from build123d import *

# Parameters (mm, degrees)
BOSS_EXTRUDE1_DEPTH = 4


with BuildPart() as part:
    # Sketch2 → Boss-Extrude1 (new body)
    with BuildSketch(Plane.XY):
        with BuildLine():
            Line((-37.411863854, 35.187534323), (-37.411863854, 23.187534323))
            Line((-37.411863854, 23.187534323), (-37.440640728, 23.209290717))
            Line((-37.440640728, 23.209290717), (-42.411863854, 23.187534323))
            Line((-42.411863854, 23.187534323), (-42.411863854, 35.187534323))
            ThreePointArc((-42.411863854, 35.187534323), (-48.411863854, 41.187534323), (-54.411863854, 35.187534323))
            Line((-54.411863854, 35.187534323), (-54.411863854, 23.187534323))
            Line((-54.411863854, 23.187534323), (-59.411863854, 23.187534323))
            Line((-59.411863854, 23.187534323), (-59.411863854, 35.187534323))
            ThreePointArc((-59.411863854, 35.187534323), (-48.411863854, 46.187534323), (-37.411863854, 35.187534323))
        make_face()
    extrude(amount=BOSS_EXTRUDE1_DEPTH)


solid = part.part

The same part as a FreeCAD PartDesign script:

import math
import FreeCAD as App
import Part
import Sketcher
from FreeCAD import Vector

doc = App.newDocument("Part")
body = doc.addObject("PartDesign::Body", "Body")

# Sketch on XY plane
sketch1 = doc.addObject("Sketcher::SketchObject", "Sketch")
body.addObject(sketch1)
sketch1.AttachmentSupport = (doc.XY_Plane, [""])
sketch1.MapMode = "FlatFace"
sketch1.addGeometry(Part.LineSegment(Vector(-37.412, 23.188, 0), Vector(-37.412, 35.188, 0)), False)
sketch1.addGeometry(Part.ArcOfCircle(Part.Circle(Vector(-48.412, 35.188, 0), Vector(0, 0, 1), 11), math.radians(0), math.radians(180)), False)
sketch1.addGeometry(Part.LineSegment(Vector(-59.412, 35.188, 0), Vector(-59.412, 23.188, 0)), False)
sketch1.addGeometry(Part.LineSegment(Vector(-59.412, 23.188, 0), Vector(-54.412, 23.188, 0)), False)
sketch1.addGeometry(Part.LineSegment(Vector(-54.412, 23.188, 0), Vector(-54.412, 35.188, 0)), False)
sketch1.addGeometry(Part.ArcOfCircle(Part.Circle(Vector(-48.412, 35.188, 0), Vector(0, 0, 1), 6), math.radians(0), math.radians(180)), False)
sketch1.addGeometry(Part.LineSegment(Vector(-42.412, 35.188, 0), Vector(-42.412, 23.188, 0)), False)
sketch1.addGeometry(Part.LineSegment(Vector(-42.412, 23.188, 0), Vector(-37.441, 23.209, 0)), False)
sketch1.addGeometry(Part.LineSegment(Vector(-37.441, 23.209, 0), Vector(-37.412, 23.188, 0)), False)
sketch1.addConstraint(Sketcher.Constraint("Tangent", 0, 2, 1, 1))
sketch1.addConstraint(Sketcher.Constraint("Tangent", 1, 2, 2, 1))
sketch1.addConstraint(Sketcher.Constraint("Coincident", 2, 2, 3, 1))
sketch1.addConstraint(Sketcher.Constraint("Coincident", 3, 2, 4, 1))
sketch1.addConstraint(Sketcher.Constraint("Tangent", 4, 2, 5, 2))
sketch1.addConstraint(Sketcher.Constraint("Tangent", 5, 1, 6, 1))
sketch1.addConstraint(Sketcher.Constraint("Coincident", 6, 2, 7, 1))
sketch1.addConstraint(Sketcher.Constraint("Coincident", 7, 2, 8, 1))
sketch1.addConstraint(Sketcher.Constraint("Coincident", 8, 2, 0, 1))
sketch1.addConstraint(Sketcher.Constraint("Vertical", 0))
sketch1.addConstraint(Sketcher.Constraint("Vertical", 2))
sketch1.addConstraint(Sketcher.Constraint("Horizontal", 3))
sketch1.addConstraint(Sketcher.Constraint("Vertical", 4))
sketch1.addConstraint(Sketcher.Constraint("Vertical", 6))
sketch1.addConstraint(Sketcher.Constraint("Coincident", 5, 3, 1, 3))
sketch1.addConstraint(Sketcher.Constraint("Horizontal", 3, 2, 6, 2))
sketch1.addConstraint(Sketcher.Constraint("Horizontal", 6, 2, 8, 2))
sketch1.addConstraint(Sketcher.Constraint("Radius", 1, 11.0))
sketch1.addConstraint(Sketcher.Constraint("Radius", 5, 6.0))
sketch1.addConstraint(Sketcher.Constraint("DistanceY", 0, 1, 0, 2, 12.0))
sketch1.addConstraint(Sketcher.Constraint("Distance", 7, 4.971271))
sketch1.addConstraint(Sketcher.Constraint("DistanceX", 7, 2, -1, 1, 37.440641))
sketch1.addConstraint(Sketcher.Constraint("DistanceY", -1, 1, 7, 2, 23.209291))
sketch1.addConstraint(Sketcher.Constraint("Distance", 8, 0.036076))
pad1 = doc.addObject("PartDesign::Pad", "Pad")
body.addObject(pad1)
pad1.Profile = sketch1
pad1.Length = 4

doc.recompute()
